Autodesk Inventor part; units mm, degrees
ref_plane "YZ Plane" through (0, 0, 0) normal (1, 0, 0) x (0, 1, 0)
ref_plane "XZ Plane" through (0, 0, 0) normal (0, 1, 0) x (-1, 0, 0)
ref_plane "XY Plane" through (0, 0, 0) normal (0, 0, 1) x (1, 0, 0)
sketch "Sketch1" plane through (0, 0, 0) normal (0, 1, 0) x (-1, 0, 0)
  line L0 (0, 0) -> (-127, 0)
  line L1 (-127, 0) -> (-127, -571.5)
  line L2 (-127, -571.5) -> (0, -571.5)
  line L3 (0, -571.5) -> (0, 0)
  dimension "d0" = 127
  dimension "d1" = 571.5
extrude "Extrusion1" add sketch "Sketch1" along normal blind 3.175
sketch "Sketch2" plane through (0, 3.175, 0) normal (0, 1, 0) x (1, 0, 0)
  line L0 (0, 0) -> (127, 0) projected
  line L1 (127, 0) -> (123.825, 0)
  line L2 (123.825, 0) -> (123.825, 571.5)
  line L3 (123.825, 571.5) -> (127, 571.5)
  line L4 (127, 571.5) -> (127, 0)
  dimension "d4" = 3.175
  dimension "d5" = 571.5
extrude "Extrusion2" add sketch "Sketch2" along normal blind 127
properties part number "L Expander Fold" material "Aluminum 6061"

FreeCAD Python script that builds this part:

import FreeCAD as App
import Part
import Sketcher
Q = App.Units.Quantity

doc = App.newDocument("Part")
body = doc.addObject("PartDesign::Body", "Body")

sketch1 = body.newObject("Sketcher::SketchObject", "Sketch")
sketch1.AttachmentSupport = (doc.getObject("XZ_Plane"), [""])
sketch1.MapMode = "FlatFace"
sketch1.addGeometry([
    Part.LineSegment(App.Vector(0, -571.5, 0), App.Vector(0, 0, 0)),
    Part.LineSegment(App.Vector(0, 0, 0), App.Vector(127, 0, 0)),
    Part.LineSegment(App.Vector(127, 0, 0), App.Vector(127, -571.5, 0)),
    Part.LineSegment(App.Vector(127, -571.5, 0), App.Vector(0, -571.5, 0)),
], False)
sketch1.addConstraint([
    Sketcher.Constraint("Coincident", 0, 2, 1, 1),
    Sketcher.Constraint("Coincident", 1, 2, 2, 1),
    Sketcher.Constraint("Coincident", 2, 2, 3, 1),
    Sketcher.Constraint("Coincident", 3, 2, 0, 1),
    Sketcher.Constraint("Vertical", 0),
    Sketcher.Constraint("Horizontal", 1),
    Sketcher.Constraint("Vertical", 2),
    Sketcher.Constraint("Horizontal", 3),
    Sketcher.Constraint("Coincident", 0, 2, -1, 1),
    Sketcher.Constraint("DistanceX", 1, 1, 1, 2, Q("5 in")),
    Sketcher.Constraint("DistanceY", 0, 1, 0, 2, Q("22.5 in")),
])
pad1 = body.newObject("PartDesign::Pad", "Pad")
pad1.Profile = sketch1
pad1.Length = Q("0.125 in")
pad1.Reversed = True

sketch2 = body.newObject("Sketcher::SketchObject", "Sketch001")
sketch2.AttachmentSupport = (doc.getObject("XZ_Plane"), [""])
sketch2.MapMode = "FlatFace"
sketch2.AttachmentOffset = App.Placement(App.Vector(0, 0, -0.125 * 25.4), App.Rotation())
sketch2.addGeometry([
    Part.LineSegment(App.Vector(123.825, -571.5, 0), App.Vector(123.825, 0, 0)),
    Part.LineSegment(App.Vector(123.825, 0, 0), App.Vector(127, 0, 0)),
    Part.LineSegment(App.Vector(127, 0, 0), App.Vector(127, -571.5, 0)),
    Part.LineSegment(App.Vector(127, -571.5, 0), App.Vector(123.825, -571.5, 0)),
], False)
sketch2.addConstraint([
    Sketcher.Constraint("Coincident", 0, 2, 1, 1),
    Sketcher.Constraint("Coincident", 1, 2, 2, 1),
    Sketcher.Constraint("Coincident", 2, 2, 3, 1),
    Sketcher.Constraint("Coincident", 3, 2, 0, 1),
    Sketcher.Constraint("Vertical", 0),
    Sketcher.Constraint("Horizontal", 1),
    Sketcher.Constraint("Vertical", 2),
    Sketcher.Constraint("Horizontal", 3),
    Sketcher.Constraint("PointOnObject", 0, 2, -1),
    Sketcher.Constraint("DistanceY", 0, 1, 0, 2, Q("22.5 in")),
    Sketcher.Constraint("DistanceX", 1, 1, 1, 2, Q("0.125 in")),
    Sketcher.Constraint("DistanceX", -1, 1, 1, 2, Q("5 in")),
])
pad2 = body.newObject("PartDesign::Pad", "Pad001")
pad2.Profile = sketch2
pad2.Length = Q("5 in")
pad2.Reversed = True

doc.recompute()
